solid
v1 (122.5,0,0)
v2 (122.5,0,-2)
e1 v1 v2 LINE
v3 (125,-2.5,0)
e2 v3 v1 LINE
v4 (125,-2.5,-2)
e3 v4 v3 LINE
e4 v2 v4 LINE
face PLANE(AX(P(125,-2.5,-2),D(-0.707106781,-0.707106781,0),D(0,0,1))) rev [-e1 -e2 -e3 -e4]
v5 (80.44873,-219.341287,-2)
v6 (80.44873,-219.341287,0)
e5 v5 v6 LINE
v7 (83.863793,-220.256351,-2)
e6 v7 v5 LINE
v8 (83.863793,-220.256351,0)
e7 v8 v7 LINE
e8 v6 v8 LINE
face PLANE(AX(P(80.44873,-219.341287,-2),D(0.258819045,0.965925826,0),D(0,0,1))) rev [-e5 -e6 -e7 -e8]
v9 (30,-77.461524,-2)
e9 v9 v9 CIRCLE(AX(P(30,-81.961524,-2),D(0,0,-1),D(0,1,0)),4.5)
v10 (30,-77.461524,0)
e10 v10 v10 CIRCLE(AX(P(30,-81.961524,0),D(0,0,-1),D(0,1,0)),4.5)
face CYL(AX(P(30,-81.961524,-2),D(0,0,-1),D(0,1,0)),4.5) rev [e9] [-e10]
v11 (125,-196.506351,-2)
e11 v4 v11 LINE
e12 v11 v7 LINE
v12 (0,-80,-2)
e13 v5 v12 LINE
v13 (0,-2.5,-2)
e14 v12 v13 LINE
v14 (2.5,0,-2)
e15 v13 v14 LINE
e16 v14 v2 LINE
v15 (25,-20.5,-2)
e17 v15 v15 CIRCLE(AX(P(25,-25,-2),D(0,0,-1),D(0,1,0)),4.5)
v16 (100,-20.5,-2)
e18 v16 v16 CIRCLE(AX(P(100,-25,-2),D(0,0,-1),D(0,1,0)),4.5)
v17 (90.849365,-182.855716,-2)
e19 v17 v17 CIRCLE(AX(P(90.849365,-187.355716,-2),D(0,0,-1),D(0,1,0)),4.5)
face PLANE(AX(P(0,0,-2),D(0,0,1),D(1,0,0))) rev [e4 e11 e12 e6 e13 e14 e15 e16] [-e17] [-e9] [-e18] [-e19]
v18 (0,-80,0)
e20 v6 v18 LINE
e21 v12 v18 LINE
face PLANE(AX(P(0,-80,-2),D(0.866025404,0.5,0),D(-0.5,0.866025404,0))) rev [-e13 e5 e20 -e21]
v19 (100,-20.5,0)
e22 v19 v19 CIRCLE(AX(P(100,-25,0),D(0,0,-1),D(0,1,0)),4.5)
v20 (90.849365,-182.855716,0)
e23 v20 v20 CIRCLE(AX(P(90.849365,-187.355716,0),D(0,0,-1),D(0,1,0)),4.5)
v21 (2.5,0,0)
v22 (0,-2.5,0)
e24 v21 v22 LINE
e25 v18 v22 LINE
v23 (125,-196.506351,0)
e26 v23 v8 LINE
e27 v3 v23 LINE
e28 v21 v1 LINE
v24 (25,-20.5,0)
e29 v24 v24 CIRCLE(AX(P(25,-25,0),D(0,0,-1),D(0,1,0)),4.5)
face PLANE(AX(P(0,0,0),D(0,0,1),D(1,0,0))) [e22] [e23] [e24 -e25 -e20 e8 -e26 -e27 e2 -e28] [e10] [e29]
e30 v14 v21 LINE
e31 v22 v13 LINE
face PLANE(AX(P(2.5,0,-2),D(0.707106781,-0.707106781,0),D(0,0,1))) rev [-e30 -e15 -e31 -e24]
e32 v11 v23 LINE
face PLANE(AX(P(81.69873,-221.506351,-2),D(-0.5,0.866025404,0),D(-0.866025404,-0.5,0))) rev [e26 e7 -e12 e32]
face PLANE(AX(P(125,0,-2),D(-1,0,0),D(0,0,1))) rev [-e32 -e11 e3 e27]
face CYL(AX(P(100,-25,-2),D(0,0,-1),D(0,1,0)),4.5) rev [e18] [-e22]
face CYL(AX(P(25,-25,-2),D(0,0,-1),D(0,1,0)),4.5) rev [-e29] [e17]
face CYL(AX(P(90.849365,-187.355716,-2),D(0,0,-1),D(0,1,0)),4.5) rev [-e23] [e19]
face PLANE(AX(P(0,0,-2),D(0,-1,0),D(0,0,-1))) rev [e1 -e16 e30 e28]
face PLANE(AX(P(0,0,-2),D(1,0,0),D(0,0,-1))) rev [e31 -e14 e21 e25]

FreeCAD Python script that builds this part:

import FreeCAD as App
import Part
import Sketcher

V = App.Vector
Q = App.Units.Quantity


def edges_at(feature, points):
    """Names of the edges that pass closest to the given points."""
    edges = feature.Shape.Edges
    near = lambda p: min(range(len(edges)), key=lambda i: edges[i].distToShape(Part.Vertex(*p))[0])
    return sorted({f"Edge{near(p) + 1}" for p in points})


def add_polygon(sketch, points):
    """Adds a closed chain of lines whose ends are joined by coincident constraints."""
    first, n = sketch.GeometryCount, len(points)
    for a, b in zip(points, points[1:] + points[:1]):
        sketch.addGeometry(Part.LineSegment(App.Vector(*a, 0), App.Vector(*b, 0)), False)
    for i in range(n):
        sketch.addConstraint(Sketcher.Constraint("Coincident", first + i, 2, first + (i + 1) % n, 1))

doc = App.newDocument("Part")
body = doc.addObject("PartDesign::Body", "Body")

# Sketch on XY plane
sketch1 = body.newObject("Sketcher::SketchObject", "Sketch")
sketch1.AttachmentSupport = (doc.getObject("XY_Plane"), [""])
sketch1.MapMode = "FlatFace"
add_polygon(sketch1, [(0, 0), (125, 0), (125, -196.506351), (81.69873, -221.506351), (0, -80)])  # lines 0-4
sketch1.addConstraint([
    Sketcher.Constraint("Horizontal", 0),
    Sketcher.Constraint("Vertical", 1),
    Sketcher.Constraint("Vertical", 4),
    Sketcher.Constraint("Coincident", 4, 2, -1, 1),
    Sketcher.Constraint("Perpendicular", 2, 3),
    Sketcher.Constraint("DistanceX", 0, 1, 0, 2, 125.0),
    Sketcher.Constraint("DistanceY", 4, 1, 4, 2, 80.0),
    Sketcher.Constraint("Angle", 2, Q("-150 deg")),
    Sketcher.Constraint("Distance", 2, 50.0),
])
pad1 = body.newObject("PartDesign::Pad", "Pad")
pad1.Profile = sketch1
pad1.Length = 2
pad1.Reversed = True

# Sketch on XY plane
sketch2 = body.newObject("Sketcher::SketchObject", "Sketch001")
sketch2.AttachmentSupport = (doc.getObject("XY_Plane"), [""])
sketch2.MapMode = "FlatFace"
sketch2.AttachmentOffset = App.Placement(V(0, 0, -2), App.Rotation())
sketch2.addGeometry([
    Part.Circle(V(25, -25, 0), V(0, 0, 1), 4.5),
    Part.Circle(V(100, -25, 0), V(0, 0, 1), 4.5),
    Part.Circle(V(30, -81.961524, 0), V(0, 0, 1), 4.5),
    Part.Circle(V(90.849365, -187.355716, 0), V(0, 0, 1), 4.5),
], False)
sketch2.addConstraint([
    Sketcher.Constraint("Equal", 0, 1),
    Sketcher.Constraint("Equal", 1, 2),
    Sketcher.Constraint("Equal", 2, 3),
    Sketcher.Constraint("Horizontal", 0, 3, 1, 3),
    Sketcher.Constraint("Diameter", 0, 9.0),
    Sketcher.Constraint("DistanceX", -1, 1, 0, 3, 25.0),
    Sketcher.Constraint("DistanceY", 0, 3, -1, 1, 25.0),
    Sketcher.Constraint("DistanceX", -1, 1, 1, 3, 100.0),
    Sketcher.Constraint("DistanceX", -1, 1, 2, 3, 30.0),
    Sketcher.Constraint("DistanceY", 3, 3, 2, 3, 105.394192),
    Sketcher.Constraint("DistanceY", 2, 3, -1, 1, 81.961524),
    Sketcher.Constraint("DistanceX", -1, 1, 3, 3, 90.849365),
])
doc.recompute()
hole = body.newObject("PartDesign::Hole", "Hole")
hole.Profile = sketch2
hole.ThreadType = "None"
hole.Diameter = 9
hole.DepthType = "ThroughAll"
hole.Reversed = True
doc.recompute()

chamfer = body.newObject("PartDesign::Chamfer", "Chamfer")
chamfer.Base = (hole, edges_at(hole, [(81.699, -221.506, -1), (125, 0, -1), (0, 0, -1)]))
chamfer.Size = 2.5

doc.recompute()
